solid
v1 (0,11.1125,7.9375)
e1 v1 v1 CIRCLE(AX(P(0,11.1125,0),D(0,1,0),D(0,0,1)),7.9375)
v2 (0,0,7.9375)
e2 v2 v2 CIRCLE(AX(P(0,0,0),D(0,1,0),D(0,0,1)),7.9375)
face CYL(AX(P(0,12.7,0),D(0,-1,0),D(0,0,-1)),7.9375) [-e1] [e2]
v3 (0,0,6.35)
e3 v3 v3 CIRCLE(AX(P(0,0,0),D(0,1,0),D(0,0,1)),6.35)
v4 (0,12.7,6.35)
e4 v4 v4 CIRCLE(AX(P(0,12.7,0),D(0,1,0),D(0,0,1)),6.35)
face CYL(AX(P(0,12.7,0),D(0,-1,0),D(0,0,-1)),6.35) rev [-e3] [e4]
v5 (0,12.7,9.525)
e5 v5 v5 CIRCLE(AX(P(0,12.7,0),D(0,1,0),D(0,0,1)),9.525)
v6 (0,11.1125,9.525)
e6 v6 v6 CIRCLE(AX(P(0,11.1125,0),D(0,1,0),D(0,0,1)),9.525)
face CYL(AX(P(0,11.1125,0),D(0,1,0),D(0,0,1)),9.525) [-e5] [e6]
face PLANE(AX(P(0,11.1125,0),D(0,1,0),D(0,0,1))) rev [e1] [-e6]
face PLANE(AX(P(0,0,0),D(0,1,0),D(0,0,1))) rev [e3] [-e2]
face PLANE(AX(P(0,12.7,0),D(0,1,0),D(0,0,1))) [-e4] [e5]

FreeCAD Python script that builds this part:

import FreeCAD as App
import Part
import Sketcher
Q = App.Units.Quantity

doc = App.newDocument("Part")
body = doc.addObject("PartDesign::Body", "Body")

sketch1 = body.newObject("Sketcher::SketchObject", "Sketch")
sketch1.AttachmentSupport = (doc.getObject("XZ_Plane"), [""])
sketch1.MapMode = "FlatFace"
sketch1.addGeometry([
    Part.Circle(App.Vector(0, 0, 0), App.Vector(0, 0, 1), 8),
    Part.Circle(App.Vector(0, 0, 0), App.Vector(0, 0, 1), 6),
], False)
sketch1.addConstraint([
    Sketcher.Constraint("Coincident", 0, 3, -1, 1),
    Sketcher.Constraint("Coincident", 1, 3, -1, 1),
    Sketcher.Constraint("Diameter", 1, Q("0.5 in")),
    Sketcher.Constraint("Diameter", 0, Q("0.625 in")),
])
pad1 = body.newObject("PartDesign::Pad", "Pad")
pad1.Profile = sketch1
pad1.Length = Q("0.5 in")
pad1.Reversed = True

sketch2 = body.newObject("Sketcher::SketchObject", "Sketch001")
sketch2.AttachmentSupport = (doc.getObject("XZ_Plane"), [""])
sketch2.MapMode = "FlatFace"
sketch2.AttachmentOffset = App.Placement(App.Vector(0, 0, -0.5 * 25.4), App.Rotation())
sketch2.addGeometry([
    Part.Circle(App.Vector(0, 0, 0), App.Vector(0, 0, 1), 10),
    Part.Circle(App.Vector(0, 0, 0), App.Vector(0, 0, 1), 6),
], False)
sketch2.addConstraint([
    Sketcher.Constraint("Coincident", 0, 3, -1, 1),
    Sketcher.Constraint("Coincident", 1, 3, -1, 1),
    Sketcher.Constraint("Diameter", 1, Q("0.5 in")),
    Sketcher.Constraint("Diameter", 0, Q("0.75 in")),
])
pad2 = body.newObject("PartDesign::Pad", "Pad001")
pad2.Profile = sketch2
pad2.Length = Q("0.0625 in")

doc.recompute()
